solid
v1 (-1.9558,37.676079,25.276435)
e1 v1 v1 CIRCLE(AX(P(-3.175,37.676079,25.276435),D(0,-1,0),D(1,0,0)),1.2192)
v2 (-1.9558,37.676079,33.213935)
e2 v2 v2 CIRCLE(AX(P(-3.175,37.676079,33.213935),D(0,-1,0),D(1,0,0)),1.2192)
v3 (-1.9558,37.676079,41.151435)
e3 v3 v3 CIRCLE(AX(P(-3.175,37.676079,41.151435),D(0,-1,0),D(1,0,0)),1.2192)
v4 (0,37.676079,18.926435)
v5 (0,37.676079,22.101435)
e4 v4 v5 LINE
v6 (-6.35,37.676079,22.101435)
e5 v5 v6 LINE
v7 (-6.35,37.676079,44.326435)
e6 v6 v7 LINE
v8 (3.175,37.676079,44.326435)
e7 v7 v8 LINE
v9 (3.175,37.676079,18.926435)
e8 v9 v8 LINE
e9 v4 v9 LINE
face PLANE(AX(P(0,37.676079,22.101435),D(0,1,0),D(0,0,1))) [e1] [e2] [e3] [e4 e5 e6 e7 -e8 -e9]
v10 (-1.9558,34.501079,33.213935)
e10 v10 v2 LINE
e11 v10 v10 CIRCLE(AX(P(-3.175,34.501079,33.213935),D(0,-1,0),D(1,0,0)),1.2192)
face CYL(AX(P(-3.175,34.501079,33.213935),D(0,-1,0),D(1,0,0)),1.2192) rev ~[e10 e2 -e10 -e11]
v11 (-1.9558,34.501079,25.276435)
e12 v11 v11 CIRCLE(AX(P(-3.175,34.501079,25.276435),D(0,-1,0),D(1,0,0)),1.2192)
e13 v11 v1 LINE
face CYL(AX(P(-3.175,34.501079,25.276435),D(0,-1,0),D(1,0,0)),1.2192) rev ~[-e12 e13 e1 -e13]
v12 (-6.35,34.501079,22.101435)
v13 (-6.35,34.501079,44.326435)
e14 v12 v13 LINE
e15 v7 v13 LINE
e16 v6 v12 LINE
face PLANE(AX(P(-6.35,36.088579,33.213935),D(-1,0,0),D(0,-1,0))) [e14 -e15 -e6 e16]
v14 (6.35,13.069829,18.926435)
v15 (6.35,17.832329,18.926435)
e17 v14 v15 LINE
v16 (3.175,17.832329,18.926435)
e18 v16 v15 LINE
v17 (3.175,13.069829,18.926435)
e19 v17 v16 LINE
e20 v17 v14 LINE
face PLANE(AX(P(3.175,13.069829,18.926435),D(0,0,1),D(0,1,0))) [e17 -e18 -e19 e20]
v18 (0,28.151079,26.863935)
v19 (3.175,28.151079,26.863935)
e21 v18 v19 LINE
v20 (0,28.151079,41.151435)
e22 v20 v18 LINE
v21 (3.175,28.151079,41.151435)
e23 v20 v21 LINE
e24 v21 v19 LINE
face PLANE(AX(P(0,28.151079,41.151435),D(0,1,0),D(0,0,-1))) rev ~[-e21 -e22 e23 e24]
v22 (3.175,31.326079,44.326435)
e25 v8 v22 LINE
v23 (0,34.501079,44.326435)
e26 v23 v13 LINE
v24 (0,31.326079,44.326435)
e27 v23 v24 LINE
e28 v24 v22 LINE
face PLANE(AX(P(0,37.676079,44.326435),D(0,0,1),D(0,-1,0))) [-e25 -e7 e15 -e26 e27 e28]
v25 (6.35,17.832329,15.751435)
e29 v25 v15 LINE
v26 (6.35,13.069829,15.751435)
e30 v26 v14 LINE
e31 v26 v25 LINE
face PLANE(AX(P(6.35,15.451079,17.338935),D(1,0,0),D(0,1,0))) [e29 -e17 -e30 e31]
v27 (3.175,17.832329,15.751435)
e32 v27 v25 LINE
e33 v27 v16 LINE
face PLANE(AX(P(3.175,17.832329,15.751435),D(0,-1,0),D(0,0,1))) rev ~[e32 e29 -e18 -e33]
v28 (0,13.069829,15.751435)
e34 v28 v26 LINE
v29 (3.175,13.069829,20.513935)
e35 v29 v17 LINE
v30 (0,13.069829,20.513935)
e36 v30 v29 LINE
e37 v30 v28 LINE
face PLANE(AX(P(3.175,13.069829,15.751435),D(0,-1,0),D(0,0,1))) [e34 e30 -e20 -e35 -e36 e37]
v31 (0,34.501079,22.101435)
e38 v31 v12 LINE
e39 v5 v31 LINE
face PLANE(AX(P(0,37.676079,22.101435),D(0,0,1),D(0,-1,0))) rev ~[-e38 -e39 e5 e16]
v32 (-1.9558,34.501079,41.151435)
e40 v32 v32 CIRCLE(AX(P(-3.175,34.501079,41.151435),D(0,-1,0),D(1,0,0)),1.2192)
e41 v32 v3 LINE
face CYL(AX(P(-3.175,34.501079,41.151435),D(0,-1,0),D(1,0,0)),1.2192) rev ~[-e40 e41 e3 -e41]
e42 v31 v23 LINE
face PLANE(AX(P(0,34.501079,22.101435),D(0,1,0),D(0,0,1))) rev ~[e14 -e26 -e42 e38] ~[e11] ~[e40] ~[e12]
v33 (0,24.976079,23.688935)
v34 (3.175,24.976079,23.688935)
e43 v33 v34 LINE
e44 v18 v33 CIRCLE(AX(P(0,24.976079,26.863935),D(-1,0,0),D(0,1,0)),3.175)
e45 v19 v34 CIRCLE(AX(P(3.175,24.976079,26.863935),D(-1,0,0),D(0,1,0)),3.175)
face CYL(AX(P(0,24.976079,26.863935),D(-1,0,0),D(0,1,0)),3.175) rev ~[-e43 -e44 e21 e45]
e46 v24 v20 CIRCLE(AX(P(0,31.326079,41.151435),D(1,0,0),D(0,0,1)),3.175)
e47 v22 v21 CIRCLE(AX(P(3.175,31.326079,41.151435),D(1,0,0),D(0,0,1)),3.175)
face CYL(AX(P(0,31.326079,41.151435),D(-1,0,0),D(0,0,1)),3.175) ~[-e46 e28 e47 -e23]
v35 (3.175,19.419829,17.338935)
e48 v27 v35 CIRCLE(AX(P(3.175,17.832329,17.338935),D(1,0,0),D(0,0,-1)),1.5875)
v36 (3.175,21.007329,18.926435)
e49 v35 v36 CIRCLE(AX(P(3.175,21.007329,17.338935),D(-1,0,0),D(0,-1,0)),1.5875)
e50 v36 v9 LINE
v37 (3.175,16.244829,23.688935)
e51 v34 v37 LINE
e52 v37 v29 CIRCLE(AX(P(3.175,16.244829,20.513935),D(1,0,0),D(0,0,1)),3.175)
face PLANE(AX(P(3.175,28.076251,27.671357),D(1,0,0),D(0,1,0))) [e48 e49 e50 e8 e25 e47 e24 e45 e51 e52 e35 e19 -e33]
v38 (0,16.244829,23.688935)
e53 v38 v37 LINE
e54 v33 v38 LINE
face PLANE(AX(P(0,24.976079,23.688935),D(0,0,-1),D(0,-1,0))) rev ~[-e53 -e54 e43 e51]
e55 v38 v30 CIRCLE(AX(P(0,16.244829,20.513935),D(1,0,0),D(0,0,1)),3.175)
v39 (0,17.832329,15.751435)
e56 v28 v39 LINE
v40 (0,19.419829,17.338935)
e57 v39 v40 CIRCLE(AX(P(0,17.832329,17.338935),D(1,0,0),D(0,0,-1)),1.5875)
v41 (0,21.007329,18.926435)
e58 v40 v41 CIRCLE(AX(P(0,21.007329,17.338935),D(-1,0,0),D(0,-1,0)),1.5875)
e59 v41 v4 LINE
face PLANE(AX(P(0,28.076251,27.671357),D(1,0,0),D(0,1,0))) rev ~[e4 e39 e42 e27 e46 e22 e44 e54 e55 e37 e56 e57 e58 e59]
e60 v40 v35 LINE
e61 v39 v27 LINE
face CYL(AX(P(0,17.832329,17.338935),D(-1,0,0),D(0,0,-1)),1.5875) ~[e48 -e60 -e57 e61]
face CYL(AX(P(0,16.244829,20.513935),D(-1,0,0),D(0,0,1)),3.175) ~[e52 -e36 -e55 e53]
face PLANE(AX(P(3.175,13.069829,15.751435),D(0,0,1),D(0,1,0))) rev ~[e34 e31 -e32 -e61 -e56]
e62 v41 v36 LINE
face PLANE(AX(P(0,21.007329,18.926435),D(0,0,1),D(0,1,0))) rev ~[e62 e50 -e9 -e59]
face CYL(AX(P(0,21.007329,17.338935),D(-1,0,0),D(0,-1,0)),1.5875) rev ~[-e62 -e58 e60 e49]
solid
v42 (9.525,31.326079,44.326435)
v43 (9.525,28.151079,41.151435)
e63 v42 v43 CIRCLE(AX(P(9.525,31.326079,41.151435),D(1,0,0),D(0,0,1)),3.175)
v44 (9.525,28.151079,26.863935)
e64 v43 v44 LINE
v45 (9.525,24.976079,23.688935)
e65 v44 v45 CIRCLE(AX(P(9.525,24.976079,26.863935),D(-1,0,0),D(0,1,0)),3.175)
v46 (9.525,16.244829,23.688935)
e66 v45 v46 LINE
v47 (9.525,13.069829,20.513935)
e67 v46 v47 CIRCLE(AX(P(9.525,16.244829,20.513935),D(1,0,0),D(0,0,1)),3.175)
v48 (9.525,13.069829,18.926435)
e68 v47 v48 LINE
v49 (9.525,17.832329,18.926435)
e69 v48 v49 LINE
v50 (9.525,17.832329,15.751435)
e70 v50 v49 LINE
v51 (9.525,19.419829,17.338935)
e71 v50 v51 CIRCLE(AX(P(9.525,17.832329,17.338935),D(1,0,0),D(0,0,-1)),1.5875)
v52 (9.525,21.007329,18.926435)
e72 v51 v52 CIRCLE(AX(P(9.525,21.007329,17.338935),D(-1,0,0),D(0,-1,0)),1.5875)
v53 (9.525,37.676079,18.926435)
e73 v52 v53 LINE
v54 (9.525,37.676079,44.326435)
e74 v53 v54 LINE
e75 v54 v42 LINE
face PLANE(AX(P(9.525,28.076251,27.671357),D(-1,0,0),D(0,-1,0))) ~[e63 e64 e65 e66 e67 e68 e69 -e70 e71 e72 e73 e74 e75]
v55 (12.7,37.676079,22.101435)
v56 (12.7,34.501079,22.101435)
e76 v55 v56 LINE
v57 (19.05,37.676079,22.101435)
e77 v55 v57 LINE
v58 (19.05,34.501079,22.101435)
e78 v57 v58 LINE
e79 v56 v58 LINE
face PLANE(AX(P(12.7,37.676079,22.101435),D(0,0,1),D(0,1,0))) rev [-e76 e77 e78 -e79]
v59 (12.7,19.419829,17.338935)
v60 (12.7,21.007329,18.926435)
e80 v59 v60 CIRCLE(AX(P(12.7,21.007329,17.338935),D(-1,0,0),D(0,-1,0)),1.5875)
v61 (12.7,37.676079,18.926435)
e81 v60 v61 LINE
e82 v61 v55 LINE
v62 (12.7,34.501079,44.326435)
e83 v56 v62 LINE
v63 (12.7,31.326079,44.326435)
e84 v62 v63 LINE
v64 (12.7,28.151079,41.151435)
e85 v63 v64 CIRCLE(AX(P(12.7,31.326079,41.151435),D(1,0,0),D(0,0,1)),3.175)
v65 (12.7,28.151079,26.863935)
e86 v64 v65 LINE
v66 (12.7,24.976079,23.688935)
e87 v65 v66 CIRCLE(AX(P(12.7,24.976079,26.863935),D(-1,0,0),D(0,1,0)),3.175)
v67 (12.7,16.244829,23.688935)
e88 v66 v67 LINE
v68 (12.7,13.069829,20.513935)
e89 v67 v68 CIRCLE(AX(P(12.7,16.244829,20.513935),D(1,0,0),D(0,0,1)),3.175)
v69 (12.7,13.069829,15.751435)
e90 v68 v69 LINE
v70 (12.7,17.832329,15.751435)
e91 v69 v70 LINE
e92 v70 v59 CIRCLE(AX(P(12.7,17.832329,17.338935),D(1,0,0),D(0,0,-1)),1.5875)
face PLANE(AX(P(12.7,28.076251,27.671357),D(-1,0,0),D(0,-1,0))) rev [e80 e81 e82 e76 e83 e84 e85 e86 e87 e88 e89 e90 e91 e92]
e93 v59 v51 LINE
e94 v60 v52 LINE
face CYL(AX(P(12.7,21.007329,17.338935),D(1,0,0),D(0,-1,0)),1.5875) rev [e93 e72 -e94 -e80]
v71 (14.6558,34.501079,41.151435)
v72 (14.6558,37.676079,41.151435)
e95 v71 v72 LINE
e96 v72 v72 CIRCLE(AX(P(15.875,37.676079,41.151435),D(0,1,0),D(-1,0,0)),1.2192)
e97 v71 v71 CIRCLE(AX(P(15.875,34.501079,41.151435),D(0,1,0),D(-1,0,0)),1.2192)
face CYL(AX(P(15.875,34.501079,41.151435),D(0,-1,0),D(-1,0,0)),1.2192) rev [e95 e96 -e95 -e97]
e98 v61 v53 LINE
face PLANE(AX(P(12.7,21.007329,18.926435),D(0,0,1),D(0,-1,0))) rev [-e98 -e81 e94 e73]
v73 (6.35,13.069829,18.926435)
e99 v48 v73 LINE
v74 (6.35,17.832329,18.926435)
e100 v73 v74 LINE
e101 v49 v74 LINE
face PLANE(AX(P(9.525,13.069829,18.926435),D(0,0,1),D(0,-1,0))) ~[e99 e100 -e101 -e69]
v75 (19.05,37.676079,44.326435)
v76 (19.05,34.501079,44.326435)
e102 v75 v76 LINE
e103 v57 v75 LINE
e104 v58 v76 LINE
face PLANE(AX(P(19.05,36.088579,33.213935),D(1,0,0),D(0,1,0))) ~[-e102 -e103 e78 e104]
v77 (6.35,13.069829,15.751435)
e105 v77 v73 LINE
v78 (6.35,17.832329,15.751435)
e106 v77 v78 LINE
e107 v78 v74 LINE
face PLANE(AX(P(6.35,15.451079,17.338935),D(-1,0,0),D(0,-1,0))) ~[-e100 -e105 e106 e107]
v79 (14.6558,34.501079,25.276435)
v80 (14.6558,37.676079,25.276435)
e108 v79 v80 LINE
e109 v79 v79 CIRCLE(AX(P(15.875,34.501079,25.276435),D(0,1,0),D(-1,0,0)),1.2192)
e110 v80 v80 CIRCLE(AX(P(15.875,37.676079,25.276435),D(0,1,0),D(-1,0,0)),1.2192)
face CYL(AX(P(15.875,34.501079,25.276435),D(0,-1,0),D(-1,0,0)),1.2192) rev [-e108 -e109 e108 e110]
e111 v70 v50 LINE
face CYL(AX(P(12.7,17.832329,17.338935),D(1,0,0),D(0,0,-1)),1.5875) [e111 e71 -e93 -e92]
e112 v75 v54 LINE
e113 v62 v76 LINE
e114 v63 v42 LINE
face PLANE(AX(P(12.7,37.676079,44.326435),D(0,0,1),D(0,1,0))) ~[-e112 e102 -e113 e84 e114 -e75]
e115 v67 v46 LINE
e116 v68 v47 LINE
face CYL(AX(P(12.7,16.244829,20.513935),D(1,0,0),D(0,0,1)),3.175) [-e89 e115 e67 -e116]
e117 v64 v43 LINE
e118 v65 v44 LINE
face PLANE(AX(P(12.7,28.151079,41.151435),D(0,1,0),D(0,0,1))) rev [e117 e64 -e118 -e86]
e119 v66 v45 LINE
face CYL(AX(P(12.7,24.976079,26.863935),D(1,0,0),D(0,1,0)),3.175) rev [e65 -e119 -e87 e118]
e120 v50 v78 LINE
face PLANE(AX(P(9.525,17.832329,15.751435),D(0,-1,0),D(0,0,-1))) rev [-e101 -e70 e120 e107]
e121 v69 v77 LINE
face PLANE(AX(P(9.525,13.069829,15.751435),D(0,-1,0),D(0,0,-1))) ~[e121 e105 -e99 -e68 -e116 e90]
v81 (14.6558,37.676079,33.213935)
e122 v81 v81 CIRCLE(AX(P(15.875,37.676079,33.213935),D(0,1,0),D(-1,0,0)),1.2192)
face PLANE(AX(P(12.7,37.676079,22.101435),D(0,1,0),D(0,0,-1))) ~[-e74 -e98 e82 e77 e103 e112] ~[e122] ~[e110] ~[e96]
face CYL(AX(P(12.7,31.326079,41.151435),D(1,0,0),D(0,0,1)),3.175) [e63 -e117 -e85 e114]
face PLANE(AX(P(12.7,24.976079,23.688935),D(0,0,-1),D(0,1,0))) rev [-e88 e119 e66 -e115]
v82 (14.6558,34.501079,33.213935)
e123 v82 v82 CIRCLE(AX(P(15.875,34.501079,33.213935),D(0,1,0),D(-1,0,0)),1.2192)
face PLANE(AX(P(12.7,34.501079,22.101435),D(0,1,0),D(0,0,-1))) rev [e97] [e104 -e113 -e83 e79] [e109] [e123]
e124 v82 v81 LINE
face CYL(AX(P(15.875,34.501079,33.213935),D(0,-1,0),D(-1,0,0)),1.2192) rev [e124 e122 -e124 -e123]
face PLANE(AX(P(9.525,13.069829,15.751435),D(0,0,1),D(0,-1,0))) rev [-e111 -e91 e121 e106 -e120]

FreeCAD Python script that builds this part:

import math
import FreeCAD as App
import Part
import Sketcher
Q = App.Units.Quantity


def add_polygon(sketch, points):
    """Adds a closed chain of lines whose ends are joined by coincident constraints."""
    first, n = sketch.GeometryCount, len(points)
    for a, b in zip(points, points[1:] + points[:1]):
        sketch.addGeometry(Part.LineSegment(App.Vector(*a, 0), App.Vector(*b, 0)), False)
    for i in range(n):
        sketch.addConstraint(Sketcher.Constraint("Coincident", first + i, 2, first + (i + 1) % n, 1))

doc = App.newDocument("Part")
body = doc.addObject("PartDesign::Body", "Body")

# Sketch on YZ plane
sketch1 = body.newObject("Sketcher::SketchObject", "Sketch")
sketch1.AttachmentSupport = (doc.getObject("YZ_Plane"), [""])
sketch1.MapMode = "FlatFace"
sketch1.addGeometry([
    Part.LineSegment(App.Vector(37.7, 44.3, 0), App.Vector(31.3, 44.3, 0)),  # 0
    Part.ArcOfCircle(Part.Circle(App.Vector(31.3, 41.2, 0), App.Vector(0, 0, 1), 3.2), math.radians(90), math.radians(180)),  # 1
    Part.LineSegment(App.Vector(28.2, 41.2, 0), App.Vector(28.2, 26.9, 0)),  # 2
    Part.ArcOfCircle(Part.Circle(App.Vector(25, 26.9, 0), App.Vector(0, 0, 1), 3.2), math.radians(-90), math.radians(0)),  # 3
    Part.LineSegment(App.Vector(25, 23.7, 0), App.Vector(16.2, 23.7, 0)),  # 4
    Part.ArcOfCircle(Part.Circle(App.Vector(16.2, 20.5, 0), App.Vector(0, 0, 1), 3.2), math.radians(90), math.radians(180)),  # 5
    Part.LineSegment(App.Vector(13.1, 20.5, 0), App.Vector(13.1, 15.8, 0)),  # 6
    Part.LineSegment(App.Vector(13.1, 15.8, 0), App.Vector(17.8, 15.8, 0)),  # 7
    Part.ArcOfCircle(Part.Circle(App.Vector(17.8, 17.3, 0), App.Vector(0, 0, 1), 1.6), math.radians(-90), math.radians(0)),  # 8
    Part.ArcOfCircle(Part.Circle(App.Vector(21, 17.3, 0), App.Vector(0, 0, 1), 1.6), math.radians(90), math.radians(180)),  # 9
    Part.LineSegment(App.Vector(21, 18.9, 0), App.Vector(37.7, 18.9, 0)),  # 10
    Part.LineSegment(App.Vector(37.7, 18.9, 0), App.Vector(37.7, 44.3, 0)),  # 11
], False)
sketch1.addConstraint([
    Sketcher.Constraint("Tangent", 0, 2, 1, 1),
    Sketcher.Constraint("Tangent", 1, 2, 2, 1),
    Sketcher.Constraint("Tangent", 2, 2, 3, 2),
    Sketcher.Constraint("Tangent", 3, 1, 4, 1),
    Sketcher.Constraint("Tangent", 4, 2, 5, 1),
    Sketcher.Constraint("Tangent", 5, 2, 6, 1),
    Sketcher.Constraint("Coincident", 6, 2, 7, 1),
    Sketcher.Constraint("Tangent", 7, 2, 8, 1),
    Sketcher.Constraint("Tangent", 8, 2, 9, 2),
    Sketcher.Constraint("Tangent", 9, 1, 10, 1),
    Sketcher.Constraint("Coincident", 10, 2, 11, 1),
    Sketcher.Constraint("Coincident", 11, 2, 0, 1),
    Sketcher.Constraint("Horizontal", 0),
    Sketcher.Constraint("Vertical", 2),
    Sketcher.Constraint("Horizontal", 4),
    Sketcher.Constraint("Vertical", 6),
    Sketcher.Constraint("Horizontal", 7),
    Sketcher.Constraint("Horizontal", 10),
    Sketcher.Constraint("Vertical", 11),
    Sketcher.Constraint("Equal", 1, 3),
    Sketcher.Constraint("Equal", 3, 5),
    Sketcher.Constraint("Equal", 8, 9),
    Sketcher.Constraint("Horizontal", 8, 3, 9, 3),
    Sketcher.Constraint("Equal", 7, 6),
    Sketcher.Constraint("DistanceY", 11, 1, 11, 2, Q("1 in")),
    Sketcher.Constraint("Radius", 1, Q("0.125 in")),
    Sketcher.Constraint("Radius", 8, Q("0.0625 in")),
    Sketcher.Constraint("DistanceX", 0, 2, 0, 1, Q("0.25 in")),
    Sketcher.Constraint("DistanceX", 4, 2, 4, 1, Q("0.34375 in")),
    Sketcher.Constraint("DistanceX", 7, 1, 7, 2, Q("0.1875 in")),
    Sketcher.Constraint("DistanceX", -1, 1, 1, 3, 31.326079),
    Sketcher.Constraint("DistanceY", -1, 1, 1, 3, 41.151435),
])
pad1 = body.newObject("PartDesign::Pad", "Pad")
pad1.Profile = sketch1
pad1.Length = Q("0.125 in")

# Sketch on YZ plane
sketch2 = body.newObject("Sketcher::SketchObject", "Sketch001")
sketch2.AttachmentSupport = (doc.getObject("YZ_Plane"), [""])
sketch2.MapMode = "FlatFace"
sketch2.AttachmentOffset = App.Placement(App.Vector(0, 0, 0.125 * 25.4), App.Rotation())
add_polygon(sketch2, [(13.1, 18.9), (13.1, 15.8), (17.8, 15.8), (17.8, 18.9)])  # lines 0-3
sketch2.addConstraint([
    Sketcher.Constraint("Vertical", 0),
    Sketcher.Constraint("Horizontal", 1),
    Sketcher.Constraint("Vertical", 2),
    Sketcher.Constraint("Horizontal", 3),
    Sketcher.Constraint("DistanceX", 1, 1, 1, 2, Q("0.1875 in")),
    Sketcher.Constraint("DistanceY", 0, 2, 0, 1, Q("0.125 in")),
    Sketcher.Constraint("DistanceX", -1, 1, 0, 2, 13.069829),
    Sketcher.Constraint("DistanceY", -1, 1, 0, 2, 15.751435),
])
pad2 = body.newObject("PartDesign::Pad", "Pad001")
pad2.Profile = sketch2
pad2.Length = Q("0.125 in")

# Sketch on YZ plane
sketch3 = body.newObject("Sketcher::SketchObject", "Sketch002")
sketch3.AttachmentSupport = (doc.getObject("YZ_Plane"), [""])
sketch3.MapMode = "FlatFace"
add_polygon(sketch3, [(37.7, 44.3), (37.7, 22.1), (34.5, 22.1), (34.5, 44.3)])  # lines 0-3
sketch3.addConstraint([
    Sketcher.Constraint("Vertical", 0),
    Sketcher.Constraint("Horizontal", 1),
    Sketcher.Constraint("Vertical", 2),
    Sketcher.Constraint("Horizontal", 3),
    Sketcher.Constraint("DistanceX", 1, 2, 1, 1, Q("0.125 in")),
    Sketcher.Constraint("DistanceY", 0, 2, 0, 1, Q("0.875 in")),
    Sketcher.Constraint("DistanceX", -1, 1, 0, 2, 37.676079),
    Sketcher.Constraint("DistanceY", -1, 1, 0, 2, 22.101435),
])
pad3 = body.newObject("PartDesign::Pad", "Pad002")
pad3.Profile = sketch3
pad3.Length = Q("0.25 in")
pad3.Reversed = True

# Sketch on XZ plane
sketch4 = body.newObject("Sketcher::SketchObject", "Sketch003")
sketch4.AttachmentSupport = (doc.getObject("XZ_Plane"), [""])
sketch4.MapMode = "FlatFace"
sketch4.AttachmentOffset = App.Placement(App.Vector(0, 0, -34.501079), App.Rotation())
sketch4.addGeometry([
    Part.Circle(App.Vector(-3.2, 41.2, 0), App.Vector(0, 0, 1), 1.2),
    Part.Circle(App.Vector(-3.2, 33.2, 0), App.Vector(0, 0, 1), 1.2),
    Part.Circle(App.Vector(-3.2, 25.3, 0), App.Vector(0, 0, 1), 1.2),
], False)
sketch4.addConstraint([
    Sketcher.Constraint("Equal", 0, 1),
    Sketcher.Constraint("Equal", 1, 2),
    Sketcher.Constraint("Vertical", 0, 3, 1, 3),
    Sketcher.Constraint("Vertical", 1, 3, 2, 3),
    Sketcher.Constraint("Diameter", 0, Q("0.096 in")),
    Sketcher.Constraint("DistanceX", 0, 3, -1, 1, Q("0.125 in")),
    Sketcher.Constraint("DistanceY", 1, 3, 0, 3, Q("0.3125 in")),
    Sketcher.Constraint("DistanceY", 2, 3, 1, 3, Q("0.3125 in")),
    Sketcher.Constraint("DistanceY", -1, 1, 0, 3, 41.151435),
])
pocket1 = body.newObject("PartDesign::Pocket", "Pocket")
pocket1.Profile = sketch4
pocket1.Length = Q("1 in")
body2 = doc.addObject("PartDesign::Body", "Body001")
doc.recompute()

mirroring = doc.addObject("Part::Mirroring", "Mirroring")
mirroring.Source = body
mirroring.Base = App.Vector(6.35, 15.451079, 17.338935)
mirroring.Normal = App.Vector(1, 0, 0)
body2.BaseFeature = mirroring
doc.recompute()
mirroring.Visibility = False

doc.recompute()
